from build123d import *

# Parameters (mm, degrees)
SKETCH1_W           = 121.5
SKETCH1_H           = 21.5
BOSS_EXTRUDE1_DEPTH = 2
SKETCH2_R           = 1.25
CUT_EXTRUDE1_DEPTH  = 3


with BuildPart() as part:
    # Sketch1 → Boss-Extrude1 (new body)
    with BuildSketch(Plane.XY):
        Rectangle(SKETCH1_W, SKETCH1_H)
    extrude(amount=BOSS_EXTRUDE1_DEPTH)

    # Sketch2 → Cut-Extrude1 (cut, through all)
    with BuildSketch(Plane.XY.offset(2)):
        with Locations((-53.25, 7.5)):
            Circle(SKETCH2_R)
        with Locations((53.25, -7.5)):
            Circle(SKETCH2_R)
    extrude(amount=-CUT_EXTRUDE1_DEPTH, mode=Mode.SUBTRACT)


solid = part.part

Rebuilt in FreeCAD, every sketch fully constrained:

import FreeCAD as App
import Part
import Sketcher
from FreeCAD import Vector

doc = App.newDocument("Part")
body = doc.addObject("PartDesign::Body", "Body")

sketch1 = body.newObject("Sketcher::SketchObject", "Sketch")
sketch1.AttachmentSupport = (doc.getObject("XY_Plane"), [""])
sketch1.MapMode = "FlatFace"
sketch1.addGeometry([
    Part.LineSegment(Vector(-61, 11, 0), Vector(-61, -11, 0)),
    Part.LineSegment(Vector(-61, -11, 0), Vector(61, -11, 0)),
    Part.LineSegment(Vector(61, -11, 0), Vector(61, 11, 0)),
    Part.LineSegment(Vector(61, 11, 0), Vector(-61, 11, 0)),
], False)
sketch1.addConstraint([
    Sketcher.Constraint("Coincident", 0, 2, 1, 1),
    Sketcher.Constraint("Coincident", 1, 2, 2, 1),
    Sketcher.Constraint("Coincident", 2, 2, 3, 1),
    Sketcher.Constraint("Coincident", 3, 2, 0, 1),
    Sketcher.Constraint("Vertical", 0),
    Sketcher.Constraint("Horizontal", 1),
    Sketcher.Constraint("Vertical", 2),
    Sketcher.Constraint("Horizontal", 3),
    Sketcher.Constraint("Symmetric", 0, 2, 2, 2, -1, 1),
    Sketcher.Constraint("DistanceX", 1, 1, 1, 2, 121.5),
    Sketcher.Constraint("DistanceY", 0, 2, 0, 1, 21.5),
])
pad1 = body.newObject("PartDesign::Pad", "Pad")
pad1.Profile = sketch1
pad1.Length = 2

sketch2 = body.newObject("Sketcher::SketchObject", "Sketch001")
sketch2.AttachmentSupport = (doc.getObject("XY_Plane"), [""])
sketch2.MapMode = "FlatFace"
sketch2.AttachmentOffset = App.Placement(Vector(0, 0, 2), App.Rotation())
sketch2.addGeometry([
    Part.Circle(Vector(-53.2, 7.5, 0), Vector(0, 0, 1), 1.2),
    Part.Circle(Vector(53.2, -7.5, 0), Vector(0, 0, 1), 1.2),
], False)
sketch2.addConstraint([
    Sketcher.Constraint("Equal", 0, 1),
    Sketcher.Constraint("Symmetric", 0, 3, 1, 3, -1, 1),
    Sketcher.Constraint("Diameter", 0, 2.5),
    Sketcher.Constraint("DistanceY", 1, 3, 0, 3, 15.0),
    Sketcher.Constraint("DistanceX", 0, 3, 1, 3, 106.5),
])
pocket1 = body.newObject("PartDesign::Pocket", "Pocket")
pocket1.Profile = sketch2
pocket1.Type = "ThroughAll"

doc.recompute()
